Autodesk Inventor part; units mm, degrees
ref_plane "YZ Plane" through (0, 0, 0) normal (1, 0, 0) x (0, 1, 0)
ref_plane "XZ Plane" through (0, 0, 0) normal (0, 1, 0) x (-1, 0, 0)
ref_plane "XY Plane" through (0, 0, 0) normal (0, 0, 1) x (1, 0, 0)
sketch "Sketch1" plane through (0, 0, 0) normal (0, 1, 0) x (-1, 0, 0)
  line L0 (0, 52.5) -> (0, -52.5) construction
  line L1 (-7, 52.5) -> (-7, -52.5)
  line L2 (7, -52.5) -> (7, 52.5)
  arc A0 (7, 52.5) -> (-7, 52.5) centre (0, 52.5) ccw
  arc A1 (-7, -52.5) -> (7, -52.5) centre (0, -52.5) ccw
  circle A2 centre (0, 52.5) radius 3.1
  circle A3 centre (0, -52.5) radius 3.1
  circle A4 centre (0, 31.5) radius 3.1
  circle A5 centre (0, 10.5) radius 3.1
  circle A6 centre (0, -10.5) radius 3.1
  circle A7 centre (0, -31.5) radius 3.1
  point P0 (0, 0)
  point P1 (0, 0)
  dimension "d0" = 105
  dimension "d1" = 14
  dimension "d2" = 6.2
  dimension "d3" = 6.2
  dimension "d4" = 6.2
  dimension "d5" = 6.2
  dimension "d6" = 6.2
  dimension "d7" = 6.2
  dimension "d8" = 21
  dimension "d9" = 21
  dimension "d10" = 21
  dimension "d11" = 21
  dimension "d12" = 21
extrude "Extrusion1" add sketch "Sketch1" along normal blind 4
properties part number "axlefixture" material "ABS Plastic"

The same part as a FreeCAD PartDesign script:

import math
import FreeCAD as App
import Part
import Sketcher

V = App.Vector

doc = App.newDocument("Part")
body = doc.addObject("PartDesign::Body", "Body")

# Sketch on XZ plane
sketch1 = body.newObject("Sketcher::SketchObject", "Sketch")
sketch1.AttachmentSupport = (doc.getObject("XZ_Plane"), [""])
sketch1.MapMode = "FlatFace"
sketch1.addGeometry(Part.ArcOfCircle(Part.Circle(V(0, 52.5, 0), V(0, 0, 1), 7), math.radians(0), math.radians(180)), False)
sketch1.addGeometry(Part.LineSegment(V(7, 52.5, 0), V(7, -52.5, 0)), False)
sketch1.addGeometry(Part.ArcOfCircle(Part.Circle(V(0, -52.5, 0), V(0, 0, 1), 7), math.radians(180), math.radians(360)), False)
sketch1.addGeometry(Part.LineSegment(V(-7, -52.5, 0), V(-7, 52.5, 0)), False)
sketch1.addGeometry(Part.Circle(V(0, -52.5, 0), V(0, 0, 1), 3.1), False)
sketch1.addGeometry(Part.Circle(V(0, -31.5, 0), V(0, 0, 1), 3.1), False)
sketch1.addGeometry(Part.Circle(V(0, -10.5, 0), V(0, 0, 1), 3.1), False)
sketch1.addGeometry(Part.Circle(V(0, 10.5, 0), V(0, 0, 1), 3.1), False)
sketch1.addGeometry(Part.Circle(V(0, 31.5, 0), V(0, 0, 1), 3.1), False)
sketch1.addGeometry(Part.Circle(V(0, 52.5, 0), V(0, 0, 1), 3.1), False)
sketch1.addConstraint(Sketcher.Constraint("Tangent", 0, 1, 1, 1))
sketch1.addConstraint(Sketcher.Constraint("Tangent", 1, 2, 2, 2))
sketch1.addConstraint(Sketcher.Constraint("Tangent", 2, 1, 3, 1))
sketch1.addConstraint(Sketcher.Constraint("Tangent", 3, 2, 0, 2))
sketch1.addConstraint(Sketcher.Constraint("Vertical", 1))
sketch1.addConstraint(Sketcher.Constraint("Vertical", 3))
sketch1.addConstraint(Sketcher.Constraint("Coincident", 4, 3, 2, 3))
sketch1.addConstraint(Sketcher.Constraint("Coincident", 9, 3, 0, 3))
sketch1.addConstraint(Sketcher.Constraint("Equal", 4, 5))
sketch1.addConstraint(Sketcher.Constraint("Equal", 5, 6))
sketch1.addConstraint(Sketcher.Constraint("Equal", 6, 7))
sketch1.addConstraint(Sketcher.Constraint("Equal", 7, 8))
sketch1.addConstraint(Sketcher.Constraint("Equal", 8, 9))
sketch1.addConstraint(Sketcher.Constraint("Symmetric", 0, 3, 2, 3, -1, 1))
sketch1.addConstraint(Sketcher.Constraint("Symmetric", 6, 3, 7, 3, -1, 1))
sketch1.addConstraint(Sketcher.Constraint("Symmetric", 5, 3, 8, 3, -1, 1))
sketch1.addConstraint(Sketcher.Constraint("PointOnObject", 5, 3, -2))
sketch1.addConstraint(Sketcher.Constraint("PointOnObject", 6, 3, -2))
sketch1.addConstraint(Sketcher.Constraint("Radius", 0, 7.0))
sketch1.addConstraint(Sketcher.Constraint("Diameter", 4, 6.2))
sketch1.addConstraint(Sketcher.Constraint("DistanceY", 1, 2, 1, 1, 105.0))
sketch1.addConstraint(Sketcher.Constraint("DistanceY", 2, 3, 5, 3, 21.0))
sketch1.addConstraint(Sketcher.Constraint("DistanceY", 5, 3, 6, 3, 21.0))
pad1 = body.newObject("PartDesign::Pad", "Pad")
pad1.Profile = sketch1
pad1.Length = 4
pad1.Reversed = True

doc.recompute()
